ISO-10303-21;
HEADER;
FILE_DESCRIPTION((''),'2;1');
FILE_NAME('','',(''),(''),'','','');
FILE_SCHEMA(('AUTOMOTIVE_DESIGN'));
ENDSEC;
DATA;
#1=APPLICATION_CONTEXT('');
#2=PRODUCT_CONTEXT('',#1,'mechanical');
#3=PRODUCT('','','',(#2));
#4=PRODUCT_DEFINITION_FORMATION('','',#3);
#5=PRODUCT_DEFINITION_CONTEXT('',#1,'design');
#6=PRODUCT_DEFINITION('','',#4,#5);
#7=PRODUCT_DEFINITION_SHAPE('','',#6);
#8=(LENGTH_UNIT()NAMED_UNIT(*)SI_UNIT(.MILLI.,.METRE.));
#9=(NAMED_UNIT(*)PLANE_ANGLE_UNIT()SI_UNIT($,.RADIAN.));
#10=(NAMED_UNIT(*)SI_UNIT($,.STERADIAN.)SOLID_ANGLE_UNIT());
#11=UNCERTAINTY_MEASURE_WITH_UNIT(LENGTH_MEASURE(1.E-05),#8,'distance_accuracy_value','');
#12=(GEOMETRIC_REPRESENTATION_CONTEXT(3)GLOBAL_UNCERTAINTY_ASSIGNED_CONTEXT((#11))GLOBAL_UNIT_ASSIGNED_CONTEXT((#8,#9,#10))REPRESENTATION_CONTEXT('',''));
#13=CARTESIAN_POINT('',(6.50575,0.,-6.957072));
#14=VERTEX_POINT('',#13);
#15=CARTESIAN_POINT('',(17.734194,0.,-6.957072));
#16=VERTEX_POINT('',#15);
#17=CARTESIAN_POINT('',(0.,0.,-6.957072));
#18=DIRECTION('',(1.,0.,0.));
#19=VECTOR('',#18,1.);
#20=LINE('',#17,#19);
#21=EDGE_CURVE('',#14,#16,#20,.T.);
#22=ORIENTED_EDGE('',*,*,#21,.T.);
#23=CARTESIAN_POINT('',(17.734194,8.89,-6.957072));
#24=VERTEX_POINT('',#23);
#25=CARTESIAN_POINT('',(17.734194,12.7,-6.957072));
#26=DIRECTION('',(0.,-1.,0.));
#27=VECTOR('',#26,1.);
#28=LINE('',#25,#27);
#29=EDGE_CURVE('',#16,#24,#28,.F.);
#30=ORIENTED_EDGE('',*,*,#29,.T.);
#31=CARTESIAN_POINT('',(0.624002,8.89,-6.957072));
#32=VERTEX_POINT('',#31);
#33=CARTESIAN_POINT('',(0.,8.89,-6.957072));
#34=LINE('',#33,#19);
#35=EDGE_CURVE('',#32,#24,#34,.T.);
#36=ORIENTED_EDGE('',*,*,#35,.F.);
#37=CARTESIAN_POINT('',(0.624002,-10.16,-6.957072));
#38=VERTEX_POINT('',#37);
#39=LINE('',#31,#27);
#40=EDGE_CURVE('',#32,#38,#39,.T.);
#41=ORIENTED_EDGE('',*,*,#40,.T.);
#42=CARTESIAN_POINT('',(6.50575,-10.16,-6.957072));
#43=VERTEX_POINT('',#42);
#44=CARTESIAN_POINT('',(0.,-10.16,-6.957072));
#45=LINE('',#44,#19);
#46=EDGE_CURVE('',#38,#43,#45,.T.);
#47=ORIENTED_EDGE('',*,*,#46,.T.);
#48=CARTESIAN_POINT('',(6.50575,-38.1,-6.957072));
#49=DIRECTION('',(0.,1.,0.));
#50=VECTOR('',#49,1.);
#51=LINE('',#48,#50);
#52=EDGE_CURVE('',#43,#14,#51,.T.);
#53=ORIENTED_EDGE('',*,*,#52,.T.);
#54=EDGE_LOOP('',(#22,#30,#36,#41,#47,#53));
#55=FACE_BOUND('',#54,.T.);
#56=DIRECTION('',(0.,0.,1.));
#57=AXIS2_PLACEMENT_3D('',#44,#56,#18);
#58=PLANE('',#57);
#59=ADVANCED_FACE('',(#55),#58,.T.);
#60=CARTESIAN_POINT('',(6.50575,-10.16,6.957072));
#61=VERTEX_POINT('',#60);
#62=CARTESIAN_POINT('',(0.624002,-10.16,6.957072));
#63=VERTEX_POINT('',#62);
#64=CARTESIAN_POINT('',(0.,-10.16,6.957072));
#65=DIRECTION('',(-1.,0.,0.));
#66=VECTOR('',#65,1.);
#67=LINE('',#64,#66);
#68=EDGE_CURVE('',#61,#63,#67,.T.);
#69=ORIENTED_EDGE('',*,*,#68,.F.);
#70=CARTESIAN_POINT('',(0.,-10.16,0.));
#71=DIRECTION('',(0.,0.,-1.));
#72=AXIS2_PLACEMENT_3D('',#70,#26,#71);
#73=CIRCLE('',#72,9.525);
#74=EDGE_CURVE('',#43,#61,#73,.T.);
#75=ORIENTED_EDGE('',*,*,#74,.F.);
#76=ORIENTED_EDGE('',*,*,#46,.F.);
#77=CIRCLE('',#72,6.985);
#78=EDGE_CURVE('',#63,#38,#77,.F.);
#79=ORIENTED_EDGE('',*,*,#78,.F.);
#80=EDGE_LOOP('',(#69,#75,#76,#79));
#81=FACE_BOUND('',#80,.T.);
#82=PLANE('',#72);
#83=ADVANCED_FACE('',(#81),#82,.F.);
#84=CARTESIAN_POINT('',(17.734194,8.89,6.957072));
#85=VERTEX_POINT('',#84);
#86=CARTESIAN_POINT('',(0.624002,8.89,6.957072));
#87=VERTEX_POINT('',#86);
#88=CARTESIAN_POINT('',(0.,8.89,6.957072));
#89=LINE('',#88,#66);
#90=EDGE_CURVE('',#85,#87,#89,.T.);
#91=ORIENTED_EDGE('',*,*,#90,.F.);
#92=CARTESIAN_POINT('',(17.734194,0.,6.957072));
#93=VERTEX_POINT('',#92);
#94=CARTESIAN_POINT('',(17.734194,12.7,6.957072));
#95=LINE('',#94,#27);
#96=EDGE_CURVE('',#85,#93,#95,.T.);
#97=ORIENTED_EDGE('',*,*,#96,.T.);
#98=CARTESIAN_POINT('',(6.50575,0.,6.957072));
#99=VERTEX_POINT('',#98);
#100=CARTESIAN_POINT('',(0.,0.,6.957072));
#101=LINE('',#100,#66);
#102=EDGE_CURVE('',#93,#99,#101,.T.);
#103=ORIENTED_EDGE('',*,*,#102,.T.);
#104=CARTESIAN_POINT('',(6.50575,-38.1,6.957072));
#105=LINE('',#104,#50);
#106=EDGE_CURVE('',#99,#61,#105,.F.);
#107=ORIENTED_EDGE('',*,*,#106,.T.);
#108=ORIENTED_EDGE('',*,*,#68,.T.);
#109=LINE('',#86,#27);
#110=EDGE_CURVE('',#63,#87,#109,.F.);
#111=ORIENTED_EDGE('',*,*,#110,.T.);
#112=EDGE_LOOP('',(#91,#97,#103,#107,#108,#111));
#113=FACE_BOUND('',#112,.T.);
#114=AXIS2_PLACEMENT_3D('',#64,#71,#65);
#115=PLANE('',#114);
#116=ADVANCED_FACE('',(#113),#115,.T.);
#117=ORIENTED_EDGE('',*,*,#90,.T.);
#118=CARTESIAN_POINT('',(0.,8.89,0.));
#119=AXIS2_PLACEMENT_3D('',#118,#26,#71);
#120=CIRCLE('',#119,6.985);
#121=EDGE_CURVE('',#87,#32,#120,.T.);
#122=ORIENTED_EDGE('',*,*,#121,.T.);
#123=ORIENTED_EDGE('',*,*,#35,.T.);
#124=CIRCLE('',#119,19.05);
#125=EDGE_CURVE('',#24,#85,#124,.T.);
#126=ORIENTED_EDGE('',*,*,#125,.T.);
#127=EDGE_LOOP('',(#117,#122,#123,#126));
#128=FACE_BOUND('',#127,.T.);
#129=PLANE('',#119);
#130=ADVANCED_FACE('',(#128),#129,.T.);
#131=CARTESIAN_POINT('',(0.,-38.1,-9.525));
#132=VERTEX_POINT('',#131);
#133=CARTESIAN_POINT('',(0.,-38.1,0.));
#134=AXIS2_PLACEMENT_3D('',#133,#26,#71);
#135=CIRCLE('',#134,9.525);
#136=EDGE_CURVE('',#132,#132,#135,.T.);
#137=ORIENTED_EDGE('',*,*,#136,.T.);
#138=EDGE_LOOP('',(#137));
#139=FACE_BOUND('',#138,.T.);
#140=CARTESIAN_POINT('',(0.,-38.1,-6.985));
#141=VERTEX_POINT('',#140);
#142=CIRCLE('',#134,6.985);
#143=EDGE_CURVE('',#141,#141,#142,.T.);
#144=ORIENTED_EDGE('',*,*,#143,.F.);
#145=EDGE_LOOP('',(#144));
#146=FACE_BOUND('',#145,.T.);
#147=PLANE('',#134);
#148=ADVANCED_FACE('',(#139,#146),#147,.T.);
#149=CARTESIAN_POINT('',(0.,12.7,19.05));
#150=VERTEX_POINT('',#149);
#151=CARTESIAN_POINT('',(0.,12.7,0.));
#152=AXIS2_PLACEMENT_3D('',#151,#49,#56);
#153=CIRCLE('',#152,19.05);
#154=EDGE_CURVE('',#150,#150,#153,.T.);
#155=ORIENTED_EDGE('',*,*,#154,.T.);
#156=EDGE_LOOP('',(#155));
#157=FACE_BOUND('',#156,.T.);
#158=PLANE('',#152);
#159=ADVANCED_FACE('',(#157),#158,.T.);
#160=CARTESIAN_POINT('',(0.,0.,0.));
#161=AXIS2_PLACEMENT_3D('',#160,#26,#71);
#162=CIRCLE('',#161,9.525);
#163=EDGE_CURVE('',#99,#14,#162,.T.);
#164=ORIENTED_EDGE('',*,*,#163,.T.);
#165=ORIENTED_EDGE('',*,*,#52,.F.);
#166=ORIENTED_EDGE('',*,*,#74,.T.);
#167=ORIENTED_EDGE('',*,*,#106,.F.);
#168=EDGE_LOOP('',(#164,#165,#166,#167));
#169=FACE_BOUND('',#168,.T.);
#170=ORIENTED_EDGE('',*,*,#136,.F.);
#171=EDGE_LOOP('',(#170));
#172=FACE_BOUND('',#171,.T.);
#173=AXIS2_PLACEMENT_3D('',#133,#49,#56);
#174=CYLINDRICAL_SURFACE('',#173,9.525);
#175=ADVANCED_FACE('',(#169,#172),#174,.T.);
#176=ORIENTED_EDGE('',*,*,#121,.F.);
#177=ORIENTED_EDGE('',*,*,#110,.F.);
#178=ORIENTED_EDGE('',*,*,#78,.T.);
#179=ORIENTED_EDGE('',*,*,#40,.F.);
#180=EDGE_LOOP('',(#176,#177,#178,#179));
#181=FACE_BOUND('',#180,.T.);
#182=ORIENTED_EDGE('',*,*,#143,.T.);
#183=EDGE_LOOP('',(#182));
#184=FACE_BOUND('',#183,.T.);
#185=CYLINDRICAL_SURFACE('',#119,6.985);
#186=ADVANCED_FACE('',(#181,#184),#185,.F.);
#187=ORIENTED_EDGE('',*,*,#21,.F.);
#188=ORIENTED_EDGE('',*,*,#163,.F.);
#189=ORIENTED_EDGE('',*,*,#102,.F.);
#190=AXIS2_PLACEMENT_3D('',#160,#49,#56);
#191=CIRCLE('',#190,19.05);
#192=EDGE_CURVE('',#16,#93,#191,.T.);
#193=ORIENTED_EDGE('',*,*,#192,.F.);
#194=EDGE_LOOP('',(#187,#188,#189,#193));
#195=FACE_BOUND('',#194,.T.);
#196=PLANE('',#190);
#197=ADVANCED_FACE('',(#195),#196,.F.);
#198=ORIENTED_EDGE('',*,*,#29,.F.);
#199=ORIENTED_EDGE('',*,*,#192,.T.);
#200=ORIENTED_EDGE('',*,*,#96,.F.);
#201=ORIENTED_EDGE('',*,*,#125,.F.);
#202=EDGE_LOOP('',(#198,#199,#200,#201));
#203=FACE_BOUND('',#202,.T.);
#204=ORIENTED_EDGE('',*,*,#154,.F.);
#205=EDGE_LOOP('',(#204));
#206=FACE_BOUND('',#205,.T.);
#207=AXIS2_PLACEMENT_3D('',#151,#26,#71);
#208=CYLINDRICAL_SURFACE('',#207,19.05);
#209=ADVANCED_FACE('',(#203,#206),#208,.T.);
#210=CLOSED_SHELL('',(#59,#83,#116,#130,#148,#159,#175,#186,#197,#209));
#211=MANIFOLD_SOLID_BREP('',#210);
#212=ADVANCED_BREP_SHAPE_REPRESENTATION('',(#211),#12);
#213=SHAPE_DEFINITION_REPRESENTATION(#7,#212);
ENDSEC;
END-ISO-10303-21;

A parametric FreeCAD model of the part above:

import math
import FreeCAD as App
import Part
import Sketcher
from FreeCAD import Vector
Q = App.Units.Quantity

doc = App.newDocument("Part")
params = doc.addObject("Spreadsheet::Sheet", "Params")
for row, (alias, value) in enumerate([
    ("sketch1_diameter", "1.5 in"),
    ("pad1_length", "0.5 in"),
    ("sketch2_diameter", "0.75 in"),
    ("pad2_length", "1.5 in"),
    ("sketch3_diameter", "0.55 in"),
    ("pocket1_length", "1.85 in"),
    ("sketch4_width", "0.75 in"),
    ("pocket2_length", "0.75 in"),
], start=1):
    params.set(f"A{row}", alias)
    params.set(f"B{row}", "=" + value)
    params.setAlias(f"B{row}", alias)

body = doc.addObject("PartDesign::Body", "Body")

sketch1 = body.newObject("Sketcher::SketchObject", "Sketch")
sketch1.AttachmentSupport = (doc.getObject("XZ_Plane"), [""])
sketch1.MapMode = "FlatFace"
sketch1.addGeometry(Part.Circle(Vector(0, 0, 0), Vector(0, 0, 1), 19), False)
sketch1.addConstraint(Sketcher.Constraint("Coincident", 0, 3, -1, 1))
sketch1.addConstraint(Sketcher.Constraint("Diameter", 0, Q("1.5 in")))
sketch1.setExpression("Constraints[1]", "Params.sketch1_diameter")
pad1 = body.newObject("PartDesign::Pad", "Pad")
pad1.Profile = sketch1
pad1.setExpression("Length", "Params.pad1_length")
pad1.Reversed = True

sketch2 = body.newObject("Sketcher::SketchObject", "Sketch001")
sketch2.AttachmentSupport = (doc.getObject("XZ_Plane"), [""])
sketch2.MapMode = "FlatFace"
sketch2.addGeometry(Part.Circle(Vector(0, 0, 0), Vector(0, 0, 1), 10), False)
sketch2.addConstraint(Sketcher.Constraint("Coincident", 0, 3, -1, 1))
sketch2.addConstraint(Sketcher.Constraint("Diameter", 0, Q("0.75 in")))
sketch2.setExpression("Constraints[1]", "Params.sketch2_diameter")
pad2 = body.newObject("PartDesign::Pad", "Pad001")
pad2.Profile = sketch2
pad2.setExpression("Length", "Params.pad2_length")

sketch3 = body.newObject("Sketcher::SketchObject", "Sketch002")
sketch3.AttachmentSupport = (doc.getObject("XZ_Plane"), [""])
sketch3.MapMode = "FlatFace"
sketch3.AttachmentOffset = App.Placement(Vector(0, 0, 1.5 * 25.4), App.Rotation())
sketch3.addGeometry(Part.Circle(Vector(0, 0, 0), Vector(0, 0, 1), 7), False)
sketch3.addConstraint(Sketcher.Constraint("Coincident", 0, 3, -1, 1))
sketch3.addConstraint(Sketcher.Constraint("Diameter", 0, Q("0.55 in")))
sketch3.setExpression("Constraints[1]", "Params.sketch3_diameter")
pocket1 = body.newObject("PartDesign::Pocket", "Pocket")
pocket1.Profile = sketch3
pocket1.setExpression("Length", "Params.pocket1_length")

sketch4 = body.newObject("Sketcher::SketchObject", "Sketch003")
sketch4.AttachmentSupport = (doc.getObject("XZ_Plane"), [""])
sketch4.MapMode = "FlatFace"
sketch4.AttachmentOffset = App.Placement(Vector(0, 0, -0.35 * 25.4), App.Rotation())
sketch4.addGeometry(Part.LineSegment(Vector(19, 7, 0), Vector(0, 7, 0)), False)
sketch4.addGeometry(Part.ArcOfCircle(Part.Circle(Vector(0, 0, 0), Vector(0, 0, 1), 7), math.radians(90), math.radians(270)), False)
sketch4.addGeometry(Part.LineSegment(Vector(0, -7, 0), Vector(19, -7, 0)), False)
sketch4.addGeometry(Part.ArcOfCircle(Part.Circle(Vector(19, 0, 0), Vector(0, 0, 1), 7), math.radians(-90), math.radians(90)), False)
sketch4.addConstraint(Sketcher.Constraint("Tangent", 0, 2, 1, 1))
sketch4.addConstraint(Sketcher.Constraint("Tangent", 1, 2, 2, 1))
sketch4.addConstraint(Sketcher.Constraint("Tangent", 2, 2, 3, 1))
sketch4.addConstraint(Sketcher.Constraint("Tangent", 3, 2, 0, 1))
sketch4.addConstraint(Sketcher.Constraint("Horizontal", 0))
sketch4.addConstraint(Sketcher.Constraint("Horizontal", 2))
sketch4.addConstraint(Sketcher.Constraint("Coincident", 1, 3, -1, 1))
sketch4.addConstraint(Sketcher.Constraint("DistanceX", 0, 2, 0, 1, Q("0.75 in")))
sketch4.addConstraint(Sketcher.Constraint("Radius", 1, 6.957072))
sketch4.setExpression("Constraints[7]", "Params.sketch4_width")
pocket2 = body.newObject("PartDesign::Pocket", "Pocket001")
pocket2.Profile = sketch4
pocket2.setExpression("Length", "Params.pocket2_length")
pocket2.Reversed = True

doc.recompute()
